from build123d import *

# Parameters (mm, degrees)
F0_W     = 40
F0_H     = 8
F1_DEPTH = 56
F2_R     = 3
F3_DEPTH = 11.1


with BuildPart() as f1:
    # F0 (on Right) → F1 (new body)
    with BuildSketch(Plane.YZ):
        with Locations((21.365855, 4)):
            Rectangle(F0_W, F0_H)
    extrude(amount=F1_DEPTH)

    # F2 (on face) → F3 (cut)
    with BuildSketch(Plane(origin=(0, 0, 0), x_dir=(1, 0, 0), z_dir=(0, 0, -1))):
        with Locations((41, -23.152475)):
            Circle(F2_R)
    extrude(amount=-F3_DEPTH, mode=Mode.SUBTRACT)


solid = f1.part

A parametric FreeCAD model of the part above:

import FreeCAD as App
import Part
import Sketcher
from FreeCAD import Vector
Q = App.Units.Quantity

doc = App.newDocument("Part")
body = doc.addObject("PartDesign::Body", "Body")

sketch1 = doc.addObject("Sketcher::SketchObject", "Sketch")
body.addObject(sketch1)
sketch1.AttachmentSupport = (doc.YZ_Plane, [""])
sketch1.MapMode = "FlatFace"
sketch1.addGeometry(Part.LineSegment(Vector(1, 8, 0), Vector(1, 0, 0)), False)
sketch1.addGeometry(Part.LineSegment(Vector(1, 0, 0), Vector(41, 0, 0)), False)
sketch1.addGeometry(Part.LineSegment(Vector(41, 0, 0), Vector(41, 8, 0)), False)
sketch1.addGeometry(Part.LineSegment(Vector(41, 8, 0), Vector(1, 8, 0)), False)
sketch1.addConstraint(Sketcher.Constraint("Coincident", 0, 2, 1, 1))
sketch1.addConstraint(Sketcher.Constraint("Coincident", 1, 2, 2, 1))
sketch1.addConstraint(Sketcher.Constraint("Coincident", 2, 2, 3, 1))
sketch1.addConstraint(Sketcher.Constraint("Coincident", 3, 2, 0, 1))
sketch1.addConstraint(Sketcher.Constraint("Vertical", 0))
sketch1.addConstraint(Sketcher.Constraint("Horizontal", 1))
sketch1.addConstraint(Sketcher.Constraint("Vertical", 2))
sketch1.addConstraint(Sketcher.Constraint("Horizontal", 3))
sketch1.addConstraint(Sketcher.Constraint("PointOnObject", 0, 2, -1))
sketch1.addConstraint(Sketcher.Constraint("DistanceX", 1, 1, 1, 2, Q("40 mm")))
sketch1.addConstraint(Sketcher.Constraint("DistanceY", 0, 2, 0, 1, Q("8 mm")))
sketch1.addConstraint(Sketcher.Constraint("DistanceX", -1, 1, 0, 2, Q("1.365855 mm")))
pad1 = doc.addObject("PartDesign::Pad", "Pad")
body.addObject(pad1)
pad1.Profile = sketch1
pad1.Length = 56

sketch2 = doc.addObject("Sketcher::SketchObject", "Sketch001")
body.addObject(sketch2)
sketch2.AttachmentSupport = (doc.XY_Plane, [""])
sketch2.MapMode = "FlatFace"
sketch2.addGeometry(Part.Circle(Vector(41, 23.2, 0), Vector(0, 0, 1), 3), False)
sketch2.addConstraint(Sketcher.Constraint("Diameter", 0, Q("6 mm")))
sketch2.addConstraint(Sketcher.Constraint("DistanceX", -1, 1, 0, 3, Q("41 mm")))
sketch2.addConstraint(Sketcher.Constraint("DistanceY", -1, 1, 0, 3, Q("23.152475 mm")))
pocket1 = doc.addObject("PartDesign::Pocket", "Pocket")
body.addObject(pocket1)
pocket1.Profile = sketch2
pocket1.Length = 11.1
pocket1.Reversed = True

doc.recompute()
